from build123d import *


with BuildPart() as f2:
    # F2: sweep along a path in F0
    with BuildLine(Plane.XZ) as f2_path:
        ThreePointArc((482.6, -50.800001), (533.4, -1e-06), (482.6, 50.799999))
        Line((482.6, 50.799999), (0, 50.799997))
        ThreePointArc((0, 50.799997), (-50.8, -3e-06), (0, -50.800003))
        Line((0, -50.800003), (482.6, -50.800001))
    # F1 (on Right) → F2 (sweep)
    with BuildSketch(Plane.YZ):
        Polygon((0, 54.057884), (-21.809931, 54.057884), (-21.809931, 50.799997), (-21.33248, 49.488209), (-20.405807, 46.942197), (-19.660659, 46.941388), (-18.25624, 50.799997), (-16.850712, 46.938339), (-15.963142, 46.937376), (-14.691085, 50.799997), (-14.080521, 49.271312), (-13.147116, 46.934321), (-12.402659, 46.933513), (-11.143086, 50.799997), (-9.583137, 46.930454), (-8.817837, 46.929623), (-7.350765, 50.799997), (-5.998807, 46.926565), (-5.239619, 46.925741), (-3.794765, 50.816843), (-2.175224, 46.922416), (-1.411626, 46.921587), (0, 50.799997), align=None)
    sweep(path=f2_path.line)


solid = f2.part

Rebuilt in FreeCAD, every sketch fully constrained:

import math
import FreeCAD as App
import Part
import Sketcher

V = App.Vector
Q = App.Units.Quantity


def add_polygon(sketch, points):
    """Adds a closed chain of lines whose ends are joined by coincident constraints."""
    first, n = sketch.GeometryCount, len(points)
    for a, b in zip(points, points[1:] + points[:1]):
        sketch.addGeometry(Part.LineSegment(App.Vector(*a, 0), App.Vector(*b, 0)), False)
    for i in range(n):
        sketch.addConstraint(Sketcher.Constraint("Coincident", first + i, 2, first + (i + 1) % n, 1))

doc = App.newDocument("Part")
params = doc.addObject("Spreadsheet::Sheet", "Params")
for row, (alias, value) in enumerate([
    ("sketch2_radius", "2 in"),
    ("sketch2_width", "19 in"),
], start=1):
    params.set(f"A{row}", alias)
    params.set(f"B{row}", "=" + value)
    params.setAlias(f"B{row}", alias)

body = doc.addObject("PartDesign::Body", "Body")

# Sketch on YZ plane
sketch1 = body.newObject("Sketcher::SketchObject", "Sketch")
sketch1.AttachmentSupport = (doc.getObject("YZ_Plane"), [""])
sketch1.MapMode = "FlatFace"
add_polygon(sketch1, [(0, 54.057884), (-21.809931, 54.057884), (-21.809931, 50.799997), (-21.33248, 49.488209), (-20.405807, 46.942197), (-19.660659, 46.941388), (-18.25624, 50.799997), (-16.850712, 46.938339), (-15.963142, 46.937376), (-14.691085, 50.799997), (-14.080521, 49.271312), (-13.147116, 46.934321), (-12.402659, 46.933513), (-11.143086, 50.799997), (-9.583137, 46.930454), (-8.817837, 46.929623), (-7.350765, 50.799997), (-5.998807, 46.926565), (-5.239619, 46.925741), (-3.794765, 50.816843), (-2.175224, 46.922416), (-1.411626, 46.921587), (0, 50.799997)])  # lines 0-22
sketch1.addConstraint([
    Sketcher.Constraint("Horizontal", 0),
    Sketcher.Constraint("Vertical", 1),
    Sketcher.Constraint("Vertical", 22),
    Sketcher.Constraint("PointOnObject", 21, 2, -2),
    Sketcher.Constraint("DistanceY", -1, 1, 1, 2, Q("1.9999999 in")),
    Sketcher.Constraint("DistanceY", -1, 1, 5, 2, Q("1.9999999 in")),
    Sketcher.Constraint("DistanceY", -1, 1, 8, 2, Q("1.9999999 in")),
    Sketcher.Constraint("DistanceY", -1, 1, 12, 2, Q("1.9999999 in")),
    Sketcher.Constraint("DistanceY", -1, 1, 15, 2, Q("1.9999999 in")),
    Sketcher.Constraint("DistanceY", -1, 1, 21, 2, Q("1.9999999 in")),
    Sketcher.Constraint("DistanceX", 15, 2, 18, 2, Q("0.14 in")),
    Sketcher.Constraint("DistanceX", 15, 2, -1, 1, Q("0.2894002 in")),
    Sketcher.Constraint("DistanceY", 18, 2, 22, 2, Q("0.1276 in")),
    Sketcher.Constraint("Distance", 10, 2.5165),
    Sketcher.Constraint("Distance", 14, 0.7653),
    Sketcher.Constraint("Distance", 20, 0.763598),
    Sketcher.Constraint("DistanceX", 0, 2, 0, 1, 21.809931),
    Sketcher.Constraint("DistanceY", 3, 2, 1, 2, 3.8578),
    Sketcher.Constraint("DistanceY", 11, 2, 9, 2, 2.337799),
    Sketcher.Constraint("DistanceX", 8, 2, 12, 2, 3.547999),
    Sketcher.Constraint("DistanceY", 17, 2, 18, 2, 3.891102),
    Sketcher.Constraint("Distance", 3, 2.70941),
    Sketcher.Constraint("Distance", 4, 0.745148),
    Sketcher.Constraint("Distance", 6, 4.10949),
    Sketcher.Constraint("Distance", 7, 0.887571),
    Sketcher.Constraint("Distance", 8, 4.06669),
    Sketcher.Constraint("Distance", 17, 0.759188),
    Sketcher.Constraint("DistanceY", 1, 2, 1, 1, 3.257887),
    Sketcher.Constraint("DistanceX", 2, 2, -1, 1, 21.33248),
    Sketcher.Constraint("DistanceY", -1, 1, 2, 2, 49.488209),
    Sketcher.Constraint("DistanceY", -1, 1, 4, 2, 46.941388),
    Sketcher.Constraint("DistanceX", 5, 2, -1, 1, 18.25624),
    Sketcher.Constraint("DistanceY", -1, 1, 6, 2, 46.938339),
    Sketcher.Constraint("DistanceX", 9, 2, -1, 1, 14.080521),
    Sketcher.Constraint("DistanceY", -1, 1, 10, 2, 46.934321),
    Sketcher.Constraint("DistanceX", 11, 2, -1, 1, 12.402659),
    Sketcher.Constraint("DistanceX", 17, 2, -1, 1, 5.239619),
    Sketcher.Constraint("DistanceY", 7, 2, 3, 2, 0.004821),
    Sketcher.Constraint("DistanceY", 10, 2, 9, 2, 2.336991),
    Sketcher.Constraint("DistanceX", 11, 2, 13, 2, 2.819522),
    Sketcher.Constraint("DistanceY", 13, 2, 11, 2, 0.003059),
    Sketcher.Constraint("DistanceY", 14, 2, 13, 2, 0.000831),
    Sketcher.Constraint("DistanceY", 16, 2, 14, 2, 0.003058),
    Sketcher.Constraint("DistanceY", 19, 2, 16, 2, 0.004149),
    Sketcher.Constraint("DistanceX", 18, 2, 19, 2, 1.619541),
    Sketcher.Constraint("DistanceY", 20, 2, 19, 2, 0.000829),
])

# Sketch on XZ plane
sketch2 = body.newObject("Sketcher::SketchObject", "Sketch001")
sketch2.AttachmentSupport = (doc.getObject("XZ_Plane"), [""])
sketch2.MapMode = "FlatFace"
sketch2.addGeometry([
    Part.ArcOfCircle(Part.Circle(V(483, 0, 0), V(0, 0, 1), 51), math.radians(-90), math.radians(90)),
    Part.LineSegment(V(483, 51, 0), V(0, 51, 0)),
    Part.ArcOfCircle(Part.Circle(V(0, 0, 0), V(0, 0, 1), 51), math.radians(90), math.radians(270)),
    Part.LineSegment(V(0, -51, 0), V(483, -51, 0)),
], False)
sketch2.addConstraint([
    Sketcher.Constraint("Tangent", 0, 2, 1, 1),
    Sketcher.Constraint("Tangent", 1, 2, 2, 1),
    Sketcher.Constraint("Tangent", 2, 2, 3, 1),
    Sketcher.Constraint("Tangent", 3, 2, 0, 1),
    Sketcher.Constraint("Horizontal", 3),
    Sketcher.Constraint("Coincident", 2, 3, -1, 1),
    Sketcher.Constraint("Equal", 0, 2),
    Sketcher.Constraint("Radius", 0, Q("2 in")),
    Sketcher.Constraint("DistanceX", 3, 1, 3, 2, Q("19 in")),
])
sketch2.setExpression("Constraints[7]", "Params.sketch2_radius")
sketch2.setExpression("Constraints[8]", "Params.sketch2_width")
doc.recompute()

additivepipe = body.newObject("PartDesign::AdditivePipe", "AdditivePipe")
additivepipe.Profile = sketch1
additivepipe.Spine = (sketch2, ["Edge1", "Edge2", "Edge3", "Edge4"])

doc.recompute()
